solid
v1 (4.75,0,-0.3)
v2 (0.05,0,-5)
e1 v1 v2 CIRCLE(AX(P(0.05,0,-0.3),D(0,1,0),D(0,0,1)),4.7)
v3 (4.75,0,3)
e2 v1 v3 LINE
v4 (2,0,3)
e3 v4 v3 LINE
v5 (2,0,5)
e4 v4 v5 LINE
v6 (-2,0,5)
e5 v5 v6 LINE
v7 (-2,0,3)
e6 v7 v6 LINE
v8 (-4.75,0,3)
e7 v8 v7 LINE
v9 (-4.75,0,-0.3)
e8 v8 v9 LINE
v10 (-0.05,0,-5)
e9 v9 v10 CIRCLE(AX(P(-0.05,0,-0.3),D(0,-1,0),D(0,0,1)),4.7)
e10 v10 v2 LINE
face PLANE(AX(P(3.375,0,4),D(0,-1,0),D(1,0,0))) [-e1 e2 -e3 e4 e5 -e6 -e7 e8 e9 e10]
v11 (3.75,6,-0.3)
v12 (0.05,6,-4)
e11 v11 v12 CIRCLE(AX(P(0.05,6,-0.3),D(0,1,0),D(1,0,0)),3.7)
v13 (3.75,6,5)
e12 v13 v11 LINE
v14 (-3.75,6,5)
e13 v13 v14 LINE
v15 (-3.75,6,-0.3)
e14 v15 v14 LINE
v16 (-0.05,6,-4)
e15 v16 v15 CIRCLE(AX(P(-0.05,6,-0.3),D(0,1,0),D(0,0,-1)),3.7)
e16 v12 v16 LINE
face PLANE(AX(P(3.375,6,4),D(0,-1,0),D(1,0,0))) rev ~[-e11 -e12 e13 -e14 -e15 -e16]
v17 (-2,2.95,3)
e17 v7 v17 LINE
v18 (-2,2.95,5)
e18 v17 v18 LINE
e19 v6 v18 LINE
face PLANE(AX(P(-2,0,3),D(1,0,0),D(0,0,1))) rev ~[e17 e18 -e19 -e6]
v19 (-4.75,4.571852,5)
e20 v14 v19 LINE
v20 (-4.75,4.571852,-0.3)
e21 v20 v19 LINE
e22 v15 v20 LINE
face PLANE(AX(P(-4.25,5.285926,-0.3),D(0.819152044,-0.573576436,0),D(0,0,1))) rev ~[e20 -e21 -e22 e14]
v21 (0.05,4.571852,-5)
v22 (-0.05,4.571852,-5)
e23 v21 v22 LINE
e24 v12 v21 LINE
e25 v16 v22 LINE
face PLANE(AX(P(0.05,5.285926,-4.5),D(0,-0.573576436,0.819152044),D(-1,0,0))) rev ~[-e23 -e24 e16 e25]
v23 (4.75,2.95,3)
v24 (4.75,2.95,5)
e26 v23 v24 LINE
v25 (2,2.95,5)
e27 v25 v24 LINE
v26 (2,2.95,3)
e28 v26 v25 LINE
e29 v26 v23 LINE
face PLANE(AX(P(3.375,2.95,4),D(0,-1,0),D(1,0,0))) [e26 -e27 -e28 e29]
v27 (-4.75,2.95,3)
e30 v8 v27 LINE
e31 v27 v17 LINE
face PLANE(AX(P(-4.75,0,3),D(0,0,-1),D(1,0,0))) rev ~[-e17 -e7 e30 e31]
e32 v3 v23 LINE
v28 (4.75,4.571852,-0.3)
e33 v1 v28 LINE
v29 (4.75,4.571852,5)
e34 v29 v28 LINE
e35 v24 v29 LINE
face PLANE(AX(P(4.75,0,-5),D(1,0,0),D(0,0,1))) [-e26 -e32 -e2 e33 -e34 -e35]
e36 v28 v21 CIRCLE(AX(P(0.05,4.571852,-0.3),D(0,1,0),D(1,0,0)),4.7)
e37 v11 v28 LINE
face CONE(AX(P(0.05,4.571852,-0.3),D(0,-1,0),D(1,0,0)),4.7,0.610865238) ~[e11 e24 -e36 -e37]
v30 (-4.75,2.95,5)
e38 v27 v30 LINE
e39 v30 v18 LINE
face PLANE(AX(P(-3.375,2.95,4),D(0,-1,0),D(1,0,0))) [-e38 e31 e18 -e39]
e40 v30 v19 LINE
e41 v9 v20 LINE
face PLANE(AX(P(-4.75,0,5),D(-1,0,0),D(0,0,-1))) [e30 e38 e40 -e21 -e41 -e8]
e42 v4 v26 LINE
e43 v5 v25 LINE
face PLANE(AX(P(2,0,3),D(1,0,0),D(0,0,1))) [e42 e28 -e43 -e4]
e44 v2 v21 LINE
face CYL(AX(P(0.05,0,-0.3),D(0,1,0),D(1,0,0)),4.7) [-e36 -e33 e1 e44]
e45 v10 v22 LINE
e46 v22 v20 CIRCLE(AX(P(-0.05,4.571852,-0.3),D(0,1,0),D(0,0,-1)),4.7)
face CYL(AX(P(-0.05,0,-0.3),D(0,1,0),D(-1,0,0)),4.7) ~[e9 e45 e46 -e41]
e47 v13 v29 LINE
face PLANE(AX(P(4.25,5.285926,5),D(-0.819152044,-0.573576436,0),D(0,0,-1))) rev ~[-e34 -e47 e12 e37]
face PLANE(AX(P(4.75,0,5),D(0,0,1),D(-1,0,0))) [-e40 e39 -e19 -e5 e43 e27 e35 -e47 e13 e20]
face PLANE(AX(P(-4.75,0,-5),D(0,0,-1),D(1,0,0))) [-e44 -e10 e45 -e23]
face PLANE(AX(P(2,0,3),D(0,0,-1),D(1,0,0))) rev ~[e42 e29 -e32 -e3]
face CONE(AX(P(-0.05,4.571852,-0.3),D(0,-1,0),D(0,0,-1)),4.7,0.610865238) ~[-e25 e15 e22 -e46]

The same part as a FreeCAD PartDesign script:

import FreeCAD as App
import Part
import Sketcher

V = App.Vector


def edges_at(feature, points):
    """Names of the edges that pass closest to the given points."""
    edges = feature.Shape.Edges
    near = lambda p: min(range(len(edges)), key=lambda i: edges[i].distToShape(Part.Vertex(*p))[0])
    return sorted({f"Edge{near(p) + 1}" for p in points})


def add_polygon(sketch, points):
    """Adds a closed chain of lines whose ends are joined by coincident constraints."""
    first, n = sketch.GeometryCount, len(points)
    for a, b in zip(points, points[1:] + points[:1]):
        sketch.addGeometry(Part.LineSegment(App.Vector(*a, 0), App.Vector(*b, 0)), False)
    for i in range(n):
        sketch.addConstraint(Sketcher.Constraint("Coincident", first + i, 2, first + (i + 1) % n, 1))

doc = App.newDocument("Part")
body = doc.addObject("PartDesign::Body", "Body")

# Sketch on XZ plane
sketch1 = doc.addObject("Sketcher::SketchObject", "Sketch")
body.addObject(sketch1)
sketch1.AttachmentSupport = (doc.XZ_Plane, [""])
sketch1.MapMode = "FlatFace"
add_polygon(sketch1, [(5, 5), (-5, 5), (-5, -5), (5, -5)])  # lines 0-3
sketch1.addConstraint([
    Sketcher.Constraint("Horizontal", 0),
    Sketcher.Constraint("Vertical", 1),
    Sketcher.Constraint("Horizontal", 2),
    Sketcher.Constraint("Vertical", 3),
    Sketcher.Constraint("Symmetric", 0, 2, 2, 2, -1, 1),
    Sketcher.Constraint("DistanceY", 1, 2, 1, 1, 10.0),
    Sketcher.Constraint("DistanceX", 0, 2, 0, 1, 9.5),
])
pad1 = doc.addObject("PartDesign::Pad", "Pad")
body.addObject(pad1)
pad1.Profile = sketch1
pad1.Length = 6
pad1.Reversed = True

# Sketch on XZ plane
sketch2 = doc.addObject("Sketcher::SketchObject", "Sketch001")
body.addObject(sketch2)
sketch2.AttachmentSupport = (doc.XZ_Plane, [""])
sketch2.MapMode = "FlatFace"
add_polygon(sketch2, [(-4.8, 5), (-4.8, 3), (-2, 3), (-2, 5)])  # lines 0-3
add_polygon(sketch2, [(2, 5), (2, 3), (4.8, 3), (4.8, 5)])  # lines 4-7
sketch2.addConstraint([
    Sketcher.Constraint("Vertical", 0),
    Sketcher.Constraint("Horizontal", 1),
    Sketcher.Constraint("Vertical", 2),
    Sketcher.Constraint("Horizontal", 3),
    Sketcher.Constraint("Vertical", 4),
    Sketcher.Constraint("Horizontal", 5),
    Sketcher.Constraint("Vertical", 6),
    Sketcher.Constraint("Horizontal", 7),
    Sketcher.Constraint("Symmetric", 1, 2, 4, 2, -2),
    Sketcher.Constraint("Symmetric", 3, 2, 6, 2, -2),
    Sketcher.Constraint("DistanceY", 0, 2, 0, 1, 2.0),
    Sketcher.Constraint("DistanceY", -1, 1, 0, 2, 3.0),
    Sketcher.Constraint("DistanceX", 1, 2, -1, 1, 2.0),
    Sketcher.Constraint("DistanceX", 1, 1, 1, 2, 2.75),
])
pocket1 = doc.addObject("PartDesign::Pocket", "Pocket")
body.addObject(pocket1)
pocket1.Profile = sketch2
pocket1.Length = 2.95
doc.recompute()

fillet = doc.addObject("PartDesign::Fillet", "Fillet")
body.addObject(fillet)
fillet.Base = (pocket1, edges_at(pocket1, [(-4.75, 3, -5), (4.75, 3, -5)]))
fillet.Radius = 4.7
doc.recompute()

chamfer = doc.addObject("PartDesign::Chamfer", "Chamfer")
body.addObject(chamfer)
chamfer.Base = (fillet, edges_at(fillet, [(3.373, 6, -3.623), (-3.373, 6, -3.623), (0, 6, -5)]))
chamfer.ChamferType = "Two distances"
chamfer.Size = 1
chamfer.Size2 = 1.428148
chamfer.FlipDirection = True

doc.recompute()
